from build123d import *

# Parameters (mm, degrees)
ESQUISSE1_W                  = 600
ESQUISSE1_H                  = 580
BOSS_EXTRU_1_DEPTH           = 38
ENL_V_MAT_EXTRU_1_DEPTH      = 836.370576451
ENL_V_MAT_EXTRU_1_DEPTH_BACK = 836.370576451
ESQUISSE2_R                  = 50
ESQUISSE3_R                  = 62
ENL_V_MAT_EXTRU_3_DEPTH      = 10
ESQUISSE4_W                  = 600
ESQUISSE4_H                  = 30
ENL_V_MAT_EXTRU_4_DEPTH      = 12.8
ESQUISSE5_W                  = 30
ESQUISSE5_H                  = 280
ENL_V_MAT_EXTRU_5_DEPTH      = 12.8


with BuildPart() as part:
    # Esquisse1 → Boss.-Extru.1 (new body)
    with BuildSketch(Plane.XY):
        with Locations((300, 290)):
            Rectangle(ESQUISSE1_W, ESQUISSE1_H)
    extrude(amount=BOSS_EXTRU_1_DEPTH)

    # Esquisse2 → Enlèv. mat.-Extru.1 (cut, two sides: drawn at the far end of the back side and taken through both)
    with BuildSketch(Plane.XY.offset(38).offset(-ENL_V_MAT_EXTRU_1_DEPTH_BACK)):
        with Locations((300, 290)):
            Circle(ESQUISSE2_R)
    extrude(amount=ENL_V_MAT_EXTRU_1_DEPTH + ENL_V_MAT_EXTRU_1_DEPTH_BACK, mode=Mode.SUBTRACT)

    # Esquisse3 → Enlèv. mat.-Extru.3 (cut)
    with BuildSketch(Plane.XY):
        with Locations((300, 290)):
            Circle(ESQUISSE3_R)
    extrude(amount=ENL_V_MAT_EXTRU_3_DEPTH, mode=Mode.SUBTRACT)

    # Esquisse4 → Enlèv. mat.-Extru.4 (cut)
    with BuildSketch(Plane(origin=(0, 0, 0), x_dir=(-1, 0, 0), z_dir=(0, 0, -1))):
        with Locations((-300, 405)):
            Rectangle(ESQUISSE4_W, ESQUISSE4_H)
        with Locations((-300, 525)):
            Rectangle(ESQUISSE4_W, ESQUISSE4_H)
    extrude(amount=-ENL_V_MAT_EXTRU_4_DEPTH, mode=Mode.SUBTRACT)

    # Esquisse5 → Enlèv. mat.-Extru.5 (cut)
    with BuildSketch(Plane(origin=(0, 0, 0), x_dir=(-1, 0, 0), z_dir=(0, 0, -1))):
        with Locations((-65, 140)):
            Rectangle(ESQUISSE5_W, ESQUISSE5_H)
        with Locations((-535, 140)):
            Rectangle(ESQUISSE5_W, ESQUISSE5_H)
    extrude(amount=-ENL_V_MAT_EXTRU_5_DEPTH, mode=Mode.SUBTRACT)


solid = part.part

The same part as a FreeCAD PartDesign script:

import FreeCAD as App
import Part
import Sketcher
Q = App.Units.Quantity

doc = App.newDocument("Part")
body = doc.addObject("PartDesign::Body", "Body")

# Sketch on XY plane
sketch1 = doc.addObject("Sketcher::SketchObject", "Sketch")
body.addObject(sketch1)
sketch1.AttachmentSupport = (doc.XY_Plane, [""])
sketch1.MapMode = "FlatFace"
sketch1.addGeometry(Part.LineSegment(App.Vector(0, 580, 0), App.Vector(0, 0, 0)), False)
sketch1.addGeometry(Part.LineSegment(App.Vector(0, 0, 0), App.Vector(600, 0, 0)), False)
sketch1.addGeometry(Part.LineSegment(App.Vector(600, 0, 0), App.Vector(600, 580, 0)), False)
sketch1.addGeometry(Part.LineSegment(App.Vector(600, 580, 0), App.Vector(0, 580, 0)), False)
sketch1.addConstraint(Sketcher.Constraint("Coincident", 0, 2, 1, 1))
sketch1.addConstraint(Sketcher.Constraint("Coincident", 1, 2, 2, 1))
sketch1.addConstraint(Sketcher.Constraint("Coincident", 2, 2, 3, 1))
sketch1.addConstraint(Sketcher.Constraint("Coincident", 3, 2, 0, 1))
sketch1.addConstraint(Sketcher.Constraint("Vertical", 0))
sketch1.addConstraint(Sketcher.Constraint("Horizontal", 1))
sketch1.addConstraint(Sketcher.Constraint("Vertical", 2))
sketch1.addConstraint(Sketcher.Constraint("Horizontal", 3))
sketch1.addConstraint(Sketcher.Constraint("Coincident", 0, 2, -1, 1))
sketch1.addConstraint(Sketcher.Constraint("DistanceX", 1, 1, 1, 2, Q("600 mm")))
sketch1.addConstraint(Sketcher.Constraint("DistanceY", 0, 2, 0, 1, Q("580 mm")))
pad1 = doc.addObject("PartDesign::Pad", "Pad")
body.addObject(pad1)
pad1.Profile = sketch1
pad1.Length = 38

# Sketch on XY plane
sketch2 = doc.addObject("Sketcher::SketchObject", "Sketch001")
body.addObject(sketch2)
sketch2.AttachmentSupport = (doc.XY_Plane, [""])
sketch2.MapMode = "FlatFace"
sketch2.AttachmentOffset = App.Placement(App.Vector(0, 0, 38), App.Rotation())
sketch2.addGeometry(Part.Circle(App.Vector(300, 290, 0), App.Vector(0, 0, 1), 50), False)
sketch2.addConstraint(Sketcher.Constraint("Diameter", 0, Q("100 mm")))
sketch2.addConstraint(Sketcher.Constraint("DistanceX", -1, 1, 0, 3, Q("300 mm")))
sketch2.addConstraint(Sketcher.Constraint("DistanceY", -1, 1, 0, 3, Q("290 mm")))
pocket1 = doc.addObject("PartDesign::Pocket", "Pocket")
body.addObject(pocket1)
pocket1.Profile = sketch2
pocket1.Type = "ThroughAll"
pocket1.Midplane = True

# Sketch on XY plane
sketch3 = doc.addObject("Sketcher::SketchObject", "Sketch002")
body.addObject(sketch3)
sketch3.AttachmentSupport = (doc.XY_Plane, [""])
sketch3.MapMode = "FlatFace"
sketch3.addGeometry(Part.Circle(App.Vector(300, 290, 0), App.Vector(0, 0, 1), 62), False)
sketch3.addConstraint(Sketcher.Constraint("Diameter", 0, Q("124 mm")))
sketch3.addConstraint(Sketcher.Constraint("DistanceX", -1, 1, 0, 3, Q("300 mm")))
sketch3.addConstraint(Sketcher.Constraint("DistanceY", -1, 1, 0, 3, Q("290 mm")))
pocket2 = doc.addObject("PartDesign::Pocket", "Pocket001")
body.addObject(pocket2)
pocket2.Profile = sketch3
pocket2.Length = 10
pocket2.Reversed = True

# Sketch on XY plane
sketch4 = doc.addObject("Sketcher::SketchObject", "Sketch003")
body.addObject(sketch4)
sketch4.AttachmentSupport = (doc.XY_Plane, [""])
sketch4.MapMode = "FlatFace"
sketch4.addGeometry(Part.LineSegment(App.Vector(600, 420, 0), App.Vector(600, 390, 0)), False)
sketch4.addGeometry(Part.LineSegment(App.Vector(600, 390, 0), App.Vector(0, 390, 0)), False)
sketch4.addGeometry(Part.LineSegment(App.Vector(0, 390, 0), App.Vector(0, 420, 0)), False)
sketch4.addGeometry(Part.LineSegment(App.Vector(0, 420, 0), App.Vector(600, 420, 0)), False)
sketch4.addGeometry(Part.LineSegment(App.Vector(600, 540, 0), App.Vector(600, 510, 0)), False)
sketch4.addGeometry(Part.LineSegment(App.Vector(600, 510, 0), App.Vector(0, 510, 0)), False)
sketch4.addGeometry(Part.LineSegment(App.Vector(0, 510, 0), App.Vector(0, 540, 0)), False)
sketch4.addGeometry(Part.LineSegment(App.Vector(0, 540, 0), App.Vector(600, 540, 0)), False)
sketch4.addConstraint(Sketcher.Constraint("Coincident", 0, 2, 1, 1))
sketch4.addConstraint(Sketcher.Constraint("Coincident", 1, 2, 2, 1))
sketch4.addConstraint(Sketcher.Constraint("Coincident", 2, 2, 3, 1))
sketch4.addConstraint(Sketcher.Constraint("Coincident", 3, 2, 0, 1))
sketch4.addConstraint(Sketcher.Constraint("Coincident", 4, 2, 5, 1))
sketch4.addConstraint(Sketcher.Constraint("Coincident", 5, 2, 6, 1))
sketch4.addConstraint(Sketcher.Constraint("Coincident", 6, 2, 7, 1))
sketch4.addConstraint(Sketcher.Constraint("Coincident", 7, 2, 4, 1))
sketch4.addConstraint(Sketcher.Constraint("Vertical", 0))
sketch4.addConstraint(Sketcher.Constraint("Horizontal", 1))
sketch4.addConstraint(Sketcher.Constraint("Vertical", 2))
sketch4.addConstraint(Sketcher.Constraint("Horizontal", 3))
sketch4.addConstraint(Sketcher.Constraint("Vertical", 4))
sketch4.addConstraint(Sketcher.Constraint("Horizontal", 5))
sketch4.addConstraint(Sketcher.Constraint("Vertical", 6))
sketch4.addConstraint(Sketcher.Constraint("Horizontal", 7))
sketch4.addConstraint(Sketcher.Constraint("PointOnObject", 1, 2, -2))
sketch4.addConstraint(Sketcher.Constraint("PointOnObject", 5, 2, -2))
sketch4.addConstraint(Sketcher.Constraint("Vertical", 3, 2, 4, 2))
sketch4.addConstraint(Sketcher.Constraint("Equal", 2, 4))
sketch4.addConstraint(Sketcher.Constraint("DistanceX", 1, 2, 1, 1, Q("600 mm")))
sketch4.addConstraint(Sketcher.Constraint("DistanceY", 0, 2, 0, 1, Q("30 mm")))
sketch4.addConstraint(Sketcher.Constraint("DistanceY", -1, 1, 0, 2, Q("390 mm")))
sketch4.addConstraint(Sketcher.Constraint("DistanceY", -1, 1, 4, 2, Q("510 mm")))
pocket3 = doc.addObject("PartDesign::Pocket", "Pocket002")
body.addObject(pocket3)
pocket3.Profile = sketch4
pocket3.Length = 12.8
pocket3.Reversed = True

# Sketch on XY plane
sketch5 = doc.addObject("Sketcher::SketchObject", "Sketch004")
body.addObject(sketch5)
sketch5.AttachmentSupport = (doc.XY_Plane, [""])
sketch5.MapMode = "FlatFace"
sketch5.addGeometry(Part.LineSegment(App.Vector(80, 280, 0), App.Vector(80, 0, 0)), False)
sketch5.addGeometry(Part.LineSegment(App.Vector(80, 0, 0), App.Vector(50, 0, 0)), False)
sketch5.addGeometry(Part.LineSegment(App.Vector(50, 0, 0), App.Vector(50, 280, 0)), False)
sketch5.addGeometry(Part.LineSegment(App.Vector(50, 280, 0), App.Vector(80, 280, 0)), False)
sketch5.addGeometry(Part.LineSegment(App.Vector(550, 280, 0), App.Vector(550, 0, 0)), False)
sketch5.addGeometry(Part.LineSegment(App.Vector(550, 0, 0), App.Vector(520, 0, 0)), False)
sketch5.addGeometry(Part.LineSegment(App.Vector(520, 0, 0), App.Vector(520, 280, 0)), False)
sketch5.addGeometry(Part.LineSegment(App.Vector(520, 280, 0), App.Vector(550, 280, 0)), False)
sketch5.addConstraint(Sketcher.Constraint("Coincident", 0, 2, 1, 1))
sketch5.addConstraint(Sketcher.Constraint("Coincident", 1, 2, 2, 1))
sketch5.addConstraint(Sketcher.Constraint("Coincident", 2, 2, 3, 1))
sketch5.addConstraint(Sketcher.Constraint("Coincident", 3, 2, 0, 1))
sketch5.addConstraint(Sketcher.Constraint("Coincident", 4, 2, 5, 1))
sketch5.addConstraint(Sketcher.Constraint("Coincident", 5, 2, 6, 1))
sketch5.addConstraint(Sketcher.Constraint("Coincident", 6, 2, 7, 1))
sketch5.addConstraint(Sketcher.Constraint("Coincident", 7, 2, 4, 1))
sketch5.addConstraint(Sketcher.Constraint("Vertical", 0))
sketch5.addConstraint(Sketcher.Constraint("Horizontal", 1))
sketch5.addConstraint(Sketcher.Constraint("Vertical", 2))
sketch5.addConstraint(Sketcher.Constraint("Horizontal", 3))
sketch5.addConstraint(Sketcher.Constraint("Vertical", 4))
sketch5.addConstraint(Sketcher.Constraint("Horizontal", 5))
sketch5.addConstraint(Sketcher.Constraint("Vertical", 6))
sketch5.addConstraint(Sketcher.Constraint("Horizontal", 7))
sketch5.addConstraint(Sketcher.Constraint("PointOnObject", 0, 2, -1))
sketch5.addConstraint(Sketcher.Constraint("PointOnObject", 4, 2, -1))
sketch5.addConstraint(Sketcher.Constraint("Horizontal", 3, 2, 6, 2))
sketch5.addConstraint(Sketcher.Constraint("Equal", 3, 5))
sketch5.addConstraint(Sketcher.Constraint("DistanceX", 1, 2, 1, 1, Q("30 mm")))
sketch5.addConstraint(Sketcher.Constraint("DistanceY", 0, 2, 0, 1, Q("280 mm")))
sketch5.addConstraint(Sketcher.Constraint("DistanceX", -1, 1, 0, 2, Q("80 mm")))
sketch5.addConstraint(Sketcher.Constraint("DistanceX", -1, 1, 4, 2, Q("550 mm")))
pocket4 = doc.addObject("PartDesign::Pocket", "Pocket003")
body.addObject(pocket4)
pocket4.Profile = sketch5
pocket4.Length = 12.8
pocket4.Reversed = True

doc.recompute()
